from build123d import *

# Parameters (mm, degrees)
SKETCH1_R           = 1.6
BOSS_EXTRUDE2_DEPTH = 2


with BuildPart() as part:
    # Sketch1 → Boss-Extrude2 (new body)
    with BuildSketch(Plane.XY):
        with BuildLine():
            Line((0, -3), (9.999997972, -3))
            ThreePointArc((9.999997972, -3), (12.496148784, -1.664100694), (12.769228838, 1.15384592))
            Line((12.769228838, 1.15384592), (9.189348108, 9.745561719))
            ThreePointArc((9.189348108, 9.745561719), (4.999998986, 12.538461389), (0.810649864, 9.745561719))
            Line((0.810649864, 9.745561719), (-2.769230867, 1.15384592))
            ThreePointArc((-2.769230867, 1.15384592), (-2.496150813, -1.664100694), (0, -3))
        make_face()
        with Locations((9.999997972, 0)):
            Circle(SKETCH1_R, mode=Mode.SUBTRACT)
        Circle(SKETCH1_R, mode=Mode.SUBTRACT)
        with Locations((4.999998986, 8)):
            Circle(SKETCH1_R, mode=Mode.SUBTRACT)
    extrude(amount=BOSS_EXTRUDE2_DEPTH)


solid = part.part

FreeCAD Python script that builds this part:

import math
import FreeCAD as App
import Part
import Sketcher

V = App.Vector

doc = App.newDocument("Part")
body = doc.addObject("PartDesign::Body", "Body")

# Sketch on XY plane
sketch1 = body.newObject("Sketcher::SketchObject", "Sketch")
sketch1.AttachmentSupport = (doc.getObject("XY_Plane"), [""])
sketch1.MapMode = "FlatFace"
sketch1.addGeometry([
    Part.LineSegment(V(0, -3, 0), V(10, -3, 0)),  # 0
    Part.ArcOfCircle(Part.Circle(V(10, 0, 0), V(0, 0, 1), 3), math.radians(-90), math.radians(23)),  # 1
    Part.LineSegment(V(12.8, 1.2, 0), V(9.2, 9.7, 0)),  # 2
    Part.ArcOfCircle(Part.Circle(V(5, 8, 0), V(0, 0, 1), 4.5), math.radians(23), math.radians(157)),  # 3
    Part.LineSegment(V(0.8, 9.7, 0), V(-2.8, 1.2, 0)),  # 4
    Part.ArcOfCircle(Part.Circle(V(0, 0, 0), V(0, 0, 1), 3), math.radians(157), math.radians(270)),  # 5
    Part.Circle(V(0, 0, 0), V(0, 0, 1), 1.6),  # 6
    Part.Circle(V(10, 0, 0), V(0, 0, 1), 1.6),  # 7
    Part.Circle(V(5, 8, 0), V(0, 0, 1), 1.6),  # 8
], False)
sketch1.addConstraint([
    Sketcher.Constraint("Tangent", 0, 2, 1, 1),
    Sketcher.Constraint("Tangent", 1, 2, 2, 1),
    Sketcher.Constraint("Tangent", 2, 2, 3, 1),
    Sketcher.Constraint("Tangent", 3, 2, 4, 1),
    Sketcher.Constraint("Tangent", 4, 2, 5, 1),
    Sketcher.Constraint("Tangent", 5, 2, 0, 1),
    Sketcher.Constraint("Horizontal", 0),
    Sketcher.Constraint("Coincident", 5, 3, -1, 1),
    Sketcher.Constraint("Coincident", 6, 3, -1, 1),
    Sketcher.Constraint("Coincident", 7, 3, 1, 3),
    Sketcher.Constraint("Coincident", 8, 3, 3, 3),
    Sketcher.Constraint("Equal", 1, 5),
    Sketcher.Constraint("Equal", 6, 7),
    Sketcher.Constraint("Equal", 7, 8),
    Sketcher.Constraint("Horizontal", 2, 2, 3, 2),
    Sketcher.Constraint("Radius", 1, 3.0),
    Sketcher.Constraint("Diameter", 6, 3.2),
    Sketcher.Constraint("DistanceX", -1, 1, 3, 3, 4.999999),
    Sketcher.Constraint("DistanceY", -1, 1, 3, 3, 8.0),
    Sketcher.Constraint("Radius", 3, 4.538461),
])
pad1 = body.newObject("PartDesign::Pad", "Pad")
pad1.Profile = sketch1
pad1.Length = 2

doc.recompute()
